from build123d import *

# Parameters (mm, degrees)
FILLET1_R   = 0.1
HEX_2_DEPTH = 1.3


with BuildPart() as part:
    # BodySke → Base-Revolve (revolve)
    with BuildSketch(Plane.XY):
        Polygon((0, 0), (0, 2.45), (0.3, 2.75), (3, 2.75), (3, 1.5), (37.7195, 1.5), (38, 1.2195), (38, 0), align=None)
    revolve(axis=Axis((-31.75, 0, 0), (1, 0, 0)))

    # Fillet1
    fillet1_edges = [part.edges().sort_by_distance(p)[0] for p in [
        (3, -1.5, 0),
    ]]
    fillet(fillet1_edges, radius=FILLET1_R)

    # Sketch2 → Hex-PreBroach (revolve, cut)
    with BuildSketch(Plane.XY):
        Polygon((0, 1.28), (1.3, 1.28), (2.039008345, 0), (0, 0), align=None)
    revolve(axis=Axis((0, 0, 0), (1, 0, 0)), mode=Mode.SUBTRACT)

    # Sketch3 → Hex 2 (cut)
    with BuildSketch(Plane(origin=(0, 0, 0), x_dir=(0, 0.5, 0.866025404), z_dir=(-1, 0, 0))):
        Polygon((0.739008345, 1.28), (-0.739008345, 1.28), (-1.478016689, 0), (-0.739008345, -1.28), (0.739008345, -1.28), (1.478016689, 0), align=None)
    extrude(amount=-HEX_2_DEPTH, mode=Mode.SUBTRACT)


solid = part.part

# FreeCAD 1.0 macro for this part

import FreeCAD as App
import Part
import Sketcher
from FreeCAD import Vector
Q = App.Units.Quantity


def edges_at(feature, points):
    """Names of the edges that pass closest to the given points."""
    edges = feature.Shape.Edges
    near = lambda p: min(range(len(edges)), key=lambda i: edges[i].distToShape(Part.Vertex(*p))[0])
    return sorted({f"Edge{near(p) + 1}" for p in points})


def add_polygon(sketch, points):
    """Adds a closed chain of lines whose ends are joined by coincident constraints."""
    first, n = sketch.GeometryCount, len(points)
    for a, b in zip(points, points[1:] + points[:1]):
        sketch.addGeometry(Part.LineSegment(App.Vector(*a, 0), App.Vector(*b, 0)), False)
    for i in range(n):
        sketch.addConstraint(Sketcher.Constraint("Coincident", first + i, 2, first + (i + 1) % n, 1))

doc = App.newDocument("Part")
params = doc.addObject("Spreadsheet::Sheet", "Params")
for row, (alias, value) in enumerate([
    ("sketch1_width", "38 mm"),
    ("sketch1_width2", "2.7 mm"),
    ("sketch1_height", "2.45 mm"),
    ("sketch1_height2", "1.25 mm"),
    ("revolution_angle", "360 deg"),
    ("fillet_radius", "0.1 mm"),
    ("sketch2_width", "1.3 mm"),
    ("sketch2_height", "1.28 mm"),
    ("groove_angle", "360 deg"),
    ("pocket1_length", "1.3 mm"),
], start=1):
    params.set(f"A{row}", alias)
    params.set(f"B{row}", "=" + value)
    params.setAlias(f"B{row}", alias)

body = doc.addObject("PartDesign::Body", "Body")

sketch1 = body.newObject("Sketcher::SketchObject", "Sketch")
sketch1.AttachmentSupport = (doc.getObject("XY_Plane"), [""])
sketch1.MapMode = "FlatFace"
add_polygon(sketch1, [(0, 2.45), (0, 0), (38, 0), (38, 1.22), (37.72, 1.5), (3, 1.5), (3, 2.75), (0.3, 2.75)])
sketch1.addConstraint(Sketcher.Constraint("Vertical", 0))
sketch1.addConstraint(Sketcher.Constraint("Horizontal", 1))
sketch1.addConstraint(Sketcher.Constraint("Vertical", 2))
sketch1.addConstraint(Sketcher.Constraint("Horizontal", 4))
sketch1.addConstraint(Sketcher.Constraint("Vertical", 5))
sketch1.addConstraint(Sketcher.Constraint("Horizontal", 6))
sketch1.addConstraint(Sketcher.Constraint("Coincident", 0, 2, -1, 1))
sketch1.addConstraint(Sketcher.Constraint("Perpendicular", 3, 7))
sketch1.addConstraint(Sketcher.Constraint("DistanceX", 1, 1, 1, 2, 38.0))
sketch1.addConstraint(Sketcher.Constraint("Angle", 3, Q("135 deg")))
sketch1.addConstraint(Sketcher.Constraint("DistanceX", 6, 2, 6, 1, 2.7))
sketch1.addConstraint(Sketcher.Constraint("DistanceX", -1, 1, 4, 2, 3.0))
sketch1.addConstraint(Sketcher.Constraint("DistanceY", 0, 2, 0, 1, 2.45))
sketch1.addConstraint(Sketcher.Constraint("DistanceY", 5, 1, 5, 2, 1.25))
sketch1.addConstraint(Sketcher.Constraint("DistanceX", 4, 2, 4, 1, 34.7195))
sketch1.setExpression("Constraints[16]", "Params.sketch1_width")
sketch1.setExpression("Constraints[18]", "Params.sketch1_width2")
sketch1.setExpression("Constraints[20]", "Params.sketch1_height")
sketch1.setExpression("Constraints[21]", "Params.sketch1_height2")
revolution = body.newObject("PartDesign::Revolution", "Revolution")
revolution.Profile = sketch1
revolution.ReferenceAxis = (sketch1, ["H_Axis"])
revolution.setExpression("Angle", "Params.revolution_angle")
doc.recompute()

fillet = body.newObject("PartDesign::Fillet", "Fillet")
fillet.Base = (revolution, edges_at(revolution, [(3, -1.5, 0)]))
fillet.setExpression("Radius", "Params.fillet_radius")

sketch2 = body.newObject("Sketcher::SketchObject", "Sketch001")
sketch2.AttachmentSupport = (doc.getObject("XY_Plane"), [""])
sketch2.MapMode = "FlatFace"
add_polygon(sketch2, [(1.3, 1.3), (0, 1.3), (0, 0), (2, 0)])
sketch2.addConstraint(Sketcher.Constraint("Horizontal", 0))
sketch2.addConstraint(Sketcher.Constraint("Vertical", 1))
sketch2.addConstraint(Sketcher.Constraint("Horizontal", 2))
sketch2.addConstraint(Sketcher.Constraint("Coincident", 1, 2, -1, 1))
sketch2.addConstraint(Sketcher.Constraint("Angle", 3, Q("120 deg")))
sketch2.addConstraint(Sketcher.Constraint("DistanceX", 0, 2, 0, 1, 1.3))
sketch2.addConstraint(Sketcher.Constraint("DistanceY", 1, 2, 1, 1, 1.28))
sketch2.setExpression("Constraints[9]", "Params.sketch2_width")
sketch2.setExpression("Constraints[10]", "Params.sketch2_height")
groove = body.newObject("PartDesign::Groove", "Groove")
groove.Profile = sketch2
groove.ReferenceAxis = (sketch2, ["H_Axis"])
groove.setExpression("Angle", "Params.groove_angle")

sketch3 = body.newObject("Sketcher::SketchObject", "Sketch002")
sketch3.AttachmentSupport = (doc.getObject("YZ_Plane"), [""])
sketch3.MapMode = "FlatFace"
add_polygon(sketch3, [(1.5, 0), (0.7, -1.3), (-0.7, -1.3), (-1.5, 0), (-0.7, 1.3), (0.7, 1.3)])
sketch3.addConstraint(Sketcher.Constraint("Horizontal", 1))
sketch3.addConstraint(Sketcher.Constraint("Horizontal", 4))
sketch3.addConstraint(Sketcher.Constraint("Symmetric", 0, 2, 3, 2, -1, 1))
sketch3.addConstraint(Sketcher.Constraint("Symmetric", 2, 2, 5, 2, -1, 1))
sketch3.addConstraint(Sketcher.Constraint("PointOnObject", 2, 2, -1))
sketch3.addConstraint(Sketcher.Constraint("Parallel", 2, 5))
sketch3.addConstraint(Sketcher.Constraint("Vertical", 1, 2, 3, 2))
sketch3.addConstraint(Sketcher.Constraint("Angle", 0, Q("-120 deg")))
sketch3.addConstraint(Sketcher.Constraint("DistanceY", 0, 2, -1, 1, 1.28))
sketch3.addConstraint(Sketcher.Constraint("DistanceX", 1, 2, 1, 1, 1.478017))
pocket1 = body.newObject("PartDesign::Pocket", "Pocket")
pocket1.Profile = sketch3
pocket1.setExpression("Length", "Params.pocket1_length")
pocket1.Reversed = True

doc.recompute()
